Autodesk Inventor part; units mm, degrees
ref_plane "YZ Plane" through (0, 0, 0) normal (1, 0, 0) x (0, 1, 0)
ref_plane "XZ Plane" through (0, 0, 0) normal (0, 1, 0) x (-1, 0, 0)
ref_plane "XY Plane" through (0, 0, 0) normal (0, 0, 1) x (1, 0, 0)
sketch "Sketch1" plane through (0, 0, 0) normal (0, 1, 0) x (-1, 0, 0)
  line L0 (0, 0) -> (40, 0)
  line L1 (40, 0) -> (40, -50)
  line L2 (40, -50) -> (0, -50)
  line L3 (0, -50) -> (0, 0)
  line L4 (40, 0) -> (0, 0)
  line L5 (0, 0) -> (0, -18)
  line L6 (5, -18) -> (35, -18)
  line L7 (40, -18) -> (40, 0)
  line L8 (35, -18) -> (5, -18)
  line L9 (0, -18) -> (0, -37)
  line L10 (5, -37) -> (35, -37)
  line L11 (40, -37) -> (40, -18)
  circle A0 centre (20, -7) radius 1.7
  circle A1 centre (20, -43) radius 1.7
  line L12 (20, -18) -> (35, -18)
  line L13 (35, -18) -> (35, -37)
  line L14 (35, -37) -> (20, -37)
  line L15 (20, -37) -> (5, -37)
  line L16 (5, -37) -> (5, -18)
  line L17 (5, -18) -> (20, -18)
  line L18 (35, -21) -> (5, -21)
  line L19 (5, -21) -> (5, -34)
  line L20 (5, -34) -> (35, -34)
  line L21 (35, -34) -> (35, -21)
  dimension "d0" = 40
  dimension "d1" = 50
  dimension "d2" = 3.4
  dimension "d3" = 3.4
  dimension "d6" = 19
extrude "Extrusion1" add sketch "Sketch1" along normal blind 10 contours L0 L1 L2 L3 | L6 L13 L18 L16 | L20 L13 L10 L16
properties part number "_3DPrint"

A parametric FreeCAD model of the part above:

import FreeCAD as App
import Part
import Sketcher

V = App.Vector


def add_polygon(sketch, points):
    """Adds a closed chain of lines whose ends are joined by coincident constraints."""
    first, n = sketch.GeometryCount, len(points)
    for a, b in zip(points, points[1:] + points[:1]):
        sketch.addGeometry(Part.LineSegment(App.Vector(*a, 0), App.Vector(*b, 0)), False)
    for i in range(n):
        sketch.addConstraint(Sketcher.Constraint("Coincident", first + i, 2, first + (i + 1) % n, 1))

doc = App.newDocument("Part")
body = doc.addObject("PartDesign::Body", "Body")

# Sketch on XZ plane
sketch1 = doc.addObject("Sketcher::SketchObject", "Sketch")
body.addObject(sketch1)
sketch1.AttachmentSupport = (doc.XZ_Plane, [""])
sketch1.MapMode = "FlatFace"
add_polygon(sketch1, [(-40, 0), (0, 0), (0, -50), (-40, -50)])  # lines 0-3
sketch1.addGeometry(Part.Circle(V(-20, -43, 0), V(0, 0, 1), 1.7), False)  # 4
add_polygon(sketch1, [(-5, -34), (-5, -21), (-35, -21), (-35, -34)])  # lines 5-8
sketch1.addGeometry(Part.Circle(V(-20, -7, 0), V(0, 0, 1), 1.7), False)  # 9
sketch1.addConstraint([
    Sketcher.Constraint("Horizontal", 0),
    Sketcher.Constraint("Vertical", 1),
    Sketcher.Constraint("Horizontal", 2),
    Sketcher.Constraint("Vertical", 3),
    Sketcher.Constraint("Vertical", 5),
    Sketcher.Constraint("Horizontal", 6),
    Sketcher.Constraint("Vertical", 7),
    Sketcher.Constraint("Horizontal", 8),
    Sketcher.Constraint("Coincident", 0, 2, -1, 1),
    Sketcher.Constraint("Equal", 4, 9),
    Sketcher.Constraint("Vertical", 4, 3, 9, 3),
    Sketcher.Constraint("Diameter", 4, 3.4),
    Sketcher.Constraint("DistanceX", 0, 1, 0, 2, 40.0),
    Sketcher.Constraint("DistanceY", 1, 2, 1, 1, 50.0),
    Sketcher.Constraint("DistanceX", 6, 2, 6, 1, 30.0),
    Sketcher.Constraint("DistanceY", 5, 1, 5, 2, 13.0),
    Sketcher.Constraint("DistanceX", 4, 3, -1, 1, 20.0),
    Sketcher.Constraint("DistanceY", 4, 3, -1, 1, 43.0),
    Sketcher.Constraint("DistanceY", 9, 3, -1, 1, 7.0),
    Sketcher.Constraint("DistanceX", 5, 2, -1, 1, 5.0),
    Sketcher.Constraint("DistanceY", 5, 2, -1, 1, 21.0),
])
pad1 = doc.addObject("PartDesign::Pad", "Pad")
body.addObject(pad1)
pad1.Profile = sketch1
pad1.Length = 10
pad1.Reversed = True

doc.recompute()
